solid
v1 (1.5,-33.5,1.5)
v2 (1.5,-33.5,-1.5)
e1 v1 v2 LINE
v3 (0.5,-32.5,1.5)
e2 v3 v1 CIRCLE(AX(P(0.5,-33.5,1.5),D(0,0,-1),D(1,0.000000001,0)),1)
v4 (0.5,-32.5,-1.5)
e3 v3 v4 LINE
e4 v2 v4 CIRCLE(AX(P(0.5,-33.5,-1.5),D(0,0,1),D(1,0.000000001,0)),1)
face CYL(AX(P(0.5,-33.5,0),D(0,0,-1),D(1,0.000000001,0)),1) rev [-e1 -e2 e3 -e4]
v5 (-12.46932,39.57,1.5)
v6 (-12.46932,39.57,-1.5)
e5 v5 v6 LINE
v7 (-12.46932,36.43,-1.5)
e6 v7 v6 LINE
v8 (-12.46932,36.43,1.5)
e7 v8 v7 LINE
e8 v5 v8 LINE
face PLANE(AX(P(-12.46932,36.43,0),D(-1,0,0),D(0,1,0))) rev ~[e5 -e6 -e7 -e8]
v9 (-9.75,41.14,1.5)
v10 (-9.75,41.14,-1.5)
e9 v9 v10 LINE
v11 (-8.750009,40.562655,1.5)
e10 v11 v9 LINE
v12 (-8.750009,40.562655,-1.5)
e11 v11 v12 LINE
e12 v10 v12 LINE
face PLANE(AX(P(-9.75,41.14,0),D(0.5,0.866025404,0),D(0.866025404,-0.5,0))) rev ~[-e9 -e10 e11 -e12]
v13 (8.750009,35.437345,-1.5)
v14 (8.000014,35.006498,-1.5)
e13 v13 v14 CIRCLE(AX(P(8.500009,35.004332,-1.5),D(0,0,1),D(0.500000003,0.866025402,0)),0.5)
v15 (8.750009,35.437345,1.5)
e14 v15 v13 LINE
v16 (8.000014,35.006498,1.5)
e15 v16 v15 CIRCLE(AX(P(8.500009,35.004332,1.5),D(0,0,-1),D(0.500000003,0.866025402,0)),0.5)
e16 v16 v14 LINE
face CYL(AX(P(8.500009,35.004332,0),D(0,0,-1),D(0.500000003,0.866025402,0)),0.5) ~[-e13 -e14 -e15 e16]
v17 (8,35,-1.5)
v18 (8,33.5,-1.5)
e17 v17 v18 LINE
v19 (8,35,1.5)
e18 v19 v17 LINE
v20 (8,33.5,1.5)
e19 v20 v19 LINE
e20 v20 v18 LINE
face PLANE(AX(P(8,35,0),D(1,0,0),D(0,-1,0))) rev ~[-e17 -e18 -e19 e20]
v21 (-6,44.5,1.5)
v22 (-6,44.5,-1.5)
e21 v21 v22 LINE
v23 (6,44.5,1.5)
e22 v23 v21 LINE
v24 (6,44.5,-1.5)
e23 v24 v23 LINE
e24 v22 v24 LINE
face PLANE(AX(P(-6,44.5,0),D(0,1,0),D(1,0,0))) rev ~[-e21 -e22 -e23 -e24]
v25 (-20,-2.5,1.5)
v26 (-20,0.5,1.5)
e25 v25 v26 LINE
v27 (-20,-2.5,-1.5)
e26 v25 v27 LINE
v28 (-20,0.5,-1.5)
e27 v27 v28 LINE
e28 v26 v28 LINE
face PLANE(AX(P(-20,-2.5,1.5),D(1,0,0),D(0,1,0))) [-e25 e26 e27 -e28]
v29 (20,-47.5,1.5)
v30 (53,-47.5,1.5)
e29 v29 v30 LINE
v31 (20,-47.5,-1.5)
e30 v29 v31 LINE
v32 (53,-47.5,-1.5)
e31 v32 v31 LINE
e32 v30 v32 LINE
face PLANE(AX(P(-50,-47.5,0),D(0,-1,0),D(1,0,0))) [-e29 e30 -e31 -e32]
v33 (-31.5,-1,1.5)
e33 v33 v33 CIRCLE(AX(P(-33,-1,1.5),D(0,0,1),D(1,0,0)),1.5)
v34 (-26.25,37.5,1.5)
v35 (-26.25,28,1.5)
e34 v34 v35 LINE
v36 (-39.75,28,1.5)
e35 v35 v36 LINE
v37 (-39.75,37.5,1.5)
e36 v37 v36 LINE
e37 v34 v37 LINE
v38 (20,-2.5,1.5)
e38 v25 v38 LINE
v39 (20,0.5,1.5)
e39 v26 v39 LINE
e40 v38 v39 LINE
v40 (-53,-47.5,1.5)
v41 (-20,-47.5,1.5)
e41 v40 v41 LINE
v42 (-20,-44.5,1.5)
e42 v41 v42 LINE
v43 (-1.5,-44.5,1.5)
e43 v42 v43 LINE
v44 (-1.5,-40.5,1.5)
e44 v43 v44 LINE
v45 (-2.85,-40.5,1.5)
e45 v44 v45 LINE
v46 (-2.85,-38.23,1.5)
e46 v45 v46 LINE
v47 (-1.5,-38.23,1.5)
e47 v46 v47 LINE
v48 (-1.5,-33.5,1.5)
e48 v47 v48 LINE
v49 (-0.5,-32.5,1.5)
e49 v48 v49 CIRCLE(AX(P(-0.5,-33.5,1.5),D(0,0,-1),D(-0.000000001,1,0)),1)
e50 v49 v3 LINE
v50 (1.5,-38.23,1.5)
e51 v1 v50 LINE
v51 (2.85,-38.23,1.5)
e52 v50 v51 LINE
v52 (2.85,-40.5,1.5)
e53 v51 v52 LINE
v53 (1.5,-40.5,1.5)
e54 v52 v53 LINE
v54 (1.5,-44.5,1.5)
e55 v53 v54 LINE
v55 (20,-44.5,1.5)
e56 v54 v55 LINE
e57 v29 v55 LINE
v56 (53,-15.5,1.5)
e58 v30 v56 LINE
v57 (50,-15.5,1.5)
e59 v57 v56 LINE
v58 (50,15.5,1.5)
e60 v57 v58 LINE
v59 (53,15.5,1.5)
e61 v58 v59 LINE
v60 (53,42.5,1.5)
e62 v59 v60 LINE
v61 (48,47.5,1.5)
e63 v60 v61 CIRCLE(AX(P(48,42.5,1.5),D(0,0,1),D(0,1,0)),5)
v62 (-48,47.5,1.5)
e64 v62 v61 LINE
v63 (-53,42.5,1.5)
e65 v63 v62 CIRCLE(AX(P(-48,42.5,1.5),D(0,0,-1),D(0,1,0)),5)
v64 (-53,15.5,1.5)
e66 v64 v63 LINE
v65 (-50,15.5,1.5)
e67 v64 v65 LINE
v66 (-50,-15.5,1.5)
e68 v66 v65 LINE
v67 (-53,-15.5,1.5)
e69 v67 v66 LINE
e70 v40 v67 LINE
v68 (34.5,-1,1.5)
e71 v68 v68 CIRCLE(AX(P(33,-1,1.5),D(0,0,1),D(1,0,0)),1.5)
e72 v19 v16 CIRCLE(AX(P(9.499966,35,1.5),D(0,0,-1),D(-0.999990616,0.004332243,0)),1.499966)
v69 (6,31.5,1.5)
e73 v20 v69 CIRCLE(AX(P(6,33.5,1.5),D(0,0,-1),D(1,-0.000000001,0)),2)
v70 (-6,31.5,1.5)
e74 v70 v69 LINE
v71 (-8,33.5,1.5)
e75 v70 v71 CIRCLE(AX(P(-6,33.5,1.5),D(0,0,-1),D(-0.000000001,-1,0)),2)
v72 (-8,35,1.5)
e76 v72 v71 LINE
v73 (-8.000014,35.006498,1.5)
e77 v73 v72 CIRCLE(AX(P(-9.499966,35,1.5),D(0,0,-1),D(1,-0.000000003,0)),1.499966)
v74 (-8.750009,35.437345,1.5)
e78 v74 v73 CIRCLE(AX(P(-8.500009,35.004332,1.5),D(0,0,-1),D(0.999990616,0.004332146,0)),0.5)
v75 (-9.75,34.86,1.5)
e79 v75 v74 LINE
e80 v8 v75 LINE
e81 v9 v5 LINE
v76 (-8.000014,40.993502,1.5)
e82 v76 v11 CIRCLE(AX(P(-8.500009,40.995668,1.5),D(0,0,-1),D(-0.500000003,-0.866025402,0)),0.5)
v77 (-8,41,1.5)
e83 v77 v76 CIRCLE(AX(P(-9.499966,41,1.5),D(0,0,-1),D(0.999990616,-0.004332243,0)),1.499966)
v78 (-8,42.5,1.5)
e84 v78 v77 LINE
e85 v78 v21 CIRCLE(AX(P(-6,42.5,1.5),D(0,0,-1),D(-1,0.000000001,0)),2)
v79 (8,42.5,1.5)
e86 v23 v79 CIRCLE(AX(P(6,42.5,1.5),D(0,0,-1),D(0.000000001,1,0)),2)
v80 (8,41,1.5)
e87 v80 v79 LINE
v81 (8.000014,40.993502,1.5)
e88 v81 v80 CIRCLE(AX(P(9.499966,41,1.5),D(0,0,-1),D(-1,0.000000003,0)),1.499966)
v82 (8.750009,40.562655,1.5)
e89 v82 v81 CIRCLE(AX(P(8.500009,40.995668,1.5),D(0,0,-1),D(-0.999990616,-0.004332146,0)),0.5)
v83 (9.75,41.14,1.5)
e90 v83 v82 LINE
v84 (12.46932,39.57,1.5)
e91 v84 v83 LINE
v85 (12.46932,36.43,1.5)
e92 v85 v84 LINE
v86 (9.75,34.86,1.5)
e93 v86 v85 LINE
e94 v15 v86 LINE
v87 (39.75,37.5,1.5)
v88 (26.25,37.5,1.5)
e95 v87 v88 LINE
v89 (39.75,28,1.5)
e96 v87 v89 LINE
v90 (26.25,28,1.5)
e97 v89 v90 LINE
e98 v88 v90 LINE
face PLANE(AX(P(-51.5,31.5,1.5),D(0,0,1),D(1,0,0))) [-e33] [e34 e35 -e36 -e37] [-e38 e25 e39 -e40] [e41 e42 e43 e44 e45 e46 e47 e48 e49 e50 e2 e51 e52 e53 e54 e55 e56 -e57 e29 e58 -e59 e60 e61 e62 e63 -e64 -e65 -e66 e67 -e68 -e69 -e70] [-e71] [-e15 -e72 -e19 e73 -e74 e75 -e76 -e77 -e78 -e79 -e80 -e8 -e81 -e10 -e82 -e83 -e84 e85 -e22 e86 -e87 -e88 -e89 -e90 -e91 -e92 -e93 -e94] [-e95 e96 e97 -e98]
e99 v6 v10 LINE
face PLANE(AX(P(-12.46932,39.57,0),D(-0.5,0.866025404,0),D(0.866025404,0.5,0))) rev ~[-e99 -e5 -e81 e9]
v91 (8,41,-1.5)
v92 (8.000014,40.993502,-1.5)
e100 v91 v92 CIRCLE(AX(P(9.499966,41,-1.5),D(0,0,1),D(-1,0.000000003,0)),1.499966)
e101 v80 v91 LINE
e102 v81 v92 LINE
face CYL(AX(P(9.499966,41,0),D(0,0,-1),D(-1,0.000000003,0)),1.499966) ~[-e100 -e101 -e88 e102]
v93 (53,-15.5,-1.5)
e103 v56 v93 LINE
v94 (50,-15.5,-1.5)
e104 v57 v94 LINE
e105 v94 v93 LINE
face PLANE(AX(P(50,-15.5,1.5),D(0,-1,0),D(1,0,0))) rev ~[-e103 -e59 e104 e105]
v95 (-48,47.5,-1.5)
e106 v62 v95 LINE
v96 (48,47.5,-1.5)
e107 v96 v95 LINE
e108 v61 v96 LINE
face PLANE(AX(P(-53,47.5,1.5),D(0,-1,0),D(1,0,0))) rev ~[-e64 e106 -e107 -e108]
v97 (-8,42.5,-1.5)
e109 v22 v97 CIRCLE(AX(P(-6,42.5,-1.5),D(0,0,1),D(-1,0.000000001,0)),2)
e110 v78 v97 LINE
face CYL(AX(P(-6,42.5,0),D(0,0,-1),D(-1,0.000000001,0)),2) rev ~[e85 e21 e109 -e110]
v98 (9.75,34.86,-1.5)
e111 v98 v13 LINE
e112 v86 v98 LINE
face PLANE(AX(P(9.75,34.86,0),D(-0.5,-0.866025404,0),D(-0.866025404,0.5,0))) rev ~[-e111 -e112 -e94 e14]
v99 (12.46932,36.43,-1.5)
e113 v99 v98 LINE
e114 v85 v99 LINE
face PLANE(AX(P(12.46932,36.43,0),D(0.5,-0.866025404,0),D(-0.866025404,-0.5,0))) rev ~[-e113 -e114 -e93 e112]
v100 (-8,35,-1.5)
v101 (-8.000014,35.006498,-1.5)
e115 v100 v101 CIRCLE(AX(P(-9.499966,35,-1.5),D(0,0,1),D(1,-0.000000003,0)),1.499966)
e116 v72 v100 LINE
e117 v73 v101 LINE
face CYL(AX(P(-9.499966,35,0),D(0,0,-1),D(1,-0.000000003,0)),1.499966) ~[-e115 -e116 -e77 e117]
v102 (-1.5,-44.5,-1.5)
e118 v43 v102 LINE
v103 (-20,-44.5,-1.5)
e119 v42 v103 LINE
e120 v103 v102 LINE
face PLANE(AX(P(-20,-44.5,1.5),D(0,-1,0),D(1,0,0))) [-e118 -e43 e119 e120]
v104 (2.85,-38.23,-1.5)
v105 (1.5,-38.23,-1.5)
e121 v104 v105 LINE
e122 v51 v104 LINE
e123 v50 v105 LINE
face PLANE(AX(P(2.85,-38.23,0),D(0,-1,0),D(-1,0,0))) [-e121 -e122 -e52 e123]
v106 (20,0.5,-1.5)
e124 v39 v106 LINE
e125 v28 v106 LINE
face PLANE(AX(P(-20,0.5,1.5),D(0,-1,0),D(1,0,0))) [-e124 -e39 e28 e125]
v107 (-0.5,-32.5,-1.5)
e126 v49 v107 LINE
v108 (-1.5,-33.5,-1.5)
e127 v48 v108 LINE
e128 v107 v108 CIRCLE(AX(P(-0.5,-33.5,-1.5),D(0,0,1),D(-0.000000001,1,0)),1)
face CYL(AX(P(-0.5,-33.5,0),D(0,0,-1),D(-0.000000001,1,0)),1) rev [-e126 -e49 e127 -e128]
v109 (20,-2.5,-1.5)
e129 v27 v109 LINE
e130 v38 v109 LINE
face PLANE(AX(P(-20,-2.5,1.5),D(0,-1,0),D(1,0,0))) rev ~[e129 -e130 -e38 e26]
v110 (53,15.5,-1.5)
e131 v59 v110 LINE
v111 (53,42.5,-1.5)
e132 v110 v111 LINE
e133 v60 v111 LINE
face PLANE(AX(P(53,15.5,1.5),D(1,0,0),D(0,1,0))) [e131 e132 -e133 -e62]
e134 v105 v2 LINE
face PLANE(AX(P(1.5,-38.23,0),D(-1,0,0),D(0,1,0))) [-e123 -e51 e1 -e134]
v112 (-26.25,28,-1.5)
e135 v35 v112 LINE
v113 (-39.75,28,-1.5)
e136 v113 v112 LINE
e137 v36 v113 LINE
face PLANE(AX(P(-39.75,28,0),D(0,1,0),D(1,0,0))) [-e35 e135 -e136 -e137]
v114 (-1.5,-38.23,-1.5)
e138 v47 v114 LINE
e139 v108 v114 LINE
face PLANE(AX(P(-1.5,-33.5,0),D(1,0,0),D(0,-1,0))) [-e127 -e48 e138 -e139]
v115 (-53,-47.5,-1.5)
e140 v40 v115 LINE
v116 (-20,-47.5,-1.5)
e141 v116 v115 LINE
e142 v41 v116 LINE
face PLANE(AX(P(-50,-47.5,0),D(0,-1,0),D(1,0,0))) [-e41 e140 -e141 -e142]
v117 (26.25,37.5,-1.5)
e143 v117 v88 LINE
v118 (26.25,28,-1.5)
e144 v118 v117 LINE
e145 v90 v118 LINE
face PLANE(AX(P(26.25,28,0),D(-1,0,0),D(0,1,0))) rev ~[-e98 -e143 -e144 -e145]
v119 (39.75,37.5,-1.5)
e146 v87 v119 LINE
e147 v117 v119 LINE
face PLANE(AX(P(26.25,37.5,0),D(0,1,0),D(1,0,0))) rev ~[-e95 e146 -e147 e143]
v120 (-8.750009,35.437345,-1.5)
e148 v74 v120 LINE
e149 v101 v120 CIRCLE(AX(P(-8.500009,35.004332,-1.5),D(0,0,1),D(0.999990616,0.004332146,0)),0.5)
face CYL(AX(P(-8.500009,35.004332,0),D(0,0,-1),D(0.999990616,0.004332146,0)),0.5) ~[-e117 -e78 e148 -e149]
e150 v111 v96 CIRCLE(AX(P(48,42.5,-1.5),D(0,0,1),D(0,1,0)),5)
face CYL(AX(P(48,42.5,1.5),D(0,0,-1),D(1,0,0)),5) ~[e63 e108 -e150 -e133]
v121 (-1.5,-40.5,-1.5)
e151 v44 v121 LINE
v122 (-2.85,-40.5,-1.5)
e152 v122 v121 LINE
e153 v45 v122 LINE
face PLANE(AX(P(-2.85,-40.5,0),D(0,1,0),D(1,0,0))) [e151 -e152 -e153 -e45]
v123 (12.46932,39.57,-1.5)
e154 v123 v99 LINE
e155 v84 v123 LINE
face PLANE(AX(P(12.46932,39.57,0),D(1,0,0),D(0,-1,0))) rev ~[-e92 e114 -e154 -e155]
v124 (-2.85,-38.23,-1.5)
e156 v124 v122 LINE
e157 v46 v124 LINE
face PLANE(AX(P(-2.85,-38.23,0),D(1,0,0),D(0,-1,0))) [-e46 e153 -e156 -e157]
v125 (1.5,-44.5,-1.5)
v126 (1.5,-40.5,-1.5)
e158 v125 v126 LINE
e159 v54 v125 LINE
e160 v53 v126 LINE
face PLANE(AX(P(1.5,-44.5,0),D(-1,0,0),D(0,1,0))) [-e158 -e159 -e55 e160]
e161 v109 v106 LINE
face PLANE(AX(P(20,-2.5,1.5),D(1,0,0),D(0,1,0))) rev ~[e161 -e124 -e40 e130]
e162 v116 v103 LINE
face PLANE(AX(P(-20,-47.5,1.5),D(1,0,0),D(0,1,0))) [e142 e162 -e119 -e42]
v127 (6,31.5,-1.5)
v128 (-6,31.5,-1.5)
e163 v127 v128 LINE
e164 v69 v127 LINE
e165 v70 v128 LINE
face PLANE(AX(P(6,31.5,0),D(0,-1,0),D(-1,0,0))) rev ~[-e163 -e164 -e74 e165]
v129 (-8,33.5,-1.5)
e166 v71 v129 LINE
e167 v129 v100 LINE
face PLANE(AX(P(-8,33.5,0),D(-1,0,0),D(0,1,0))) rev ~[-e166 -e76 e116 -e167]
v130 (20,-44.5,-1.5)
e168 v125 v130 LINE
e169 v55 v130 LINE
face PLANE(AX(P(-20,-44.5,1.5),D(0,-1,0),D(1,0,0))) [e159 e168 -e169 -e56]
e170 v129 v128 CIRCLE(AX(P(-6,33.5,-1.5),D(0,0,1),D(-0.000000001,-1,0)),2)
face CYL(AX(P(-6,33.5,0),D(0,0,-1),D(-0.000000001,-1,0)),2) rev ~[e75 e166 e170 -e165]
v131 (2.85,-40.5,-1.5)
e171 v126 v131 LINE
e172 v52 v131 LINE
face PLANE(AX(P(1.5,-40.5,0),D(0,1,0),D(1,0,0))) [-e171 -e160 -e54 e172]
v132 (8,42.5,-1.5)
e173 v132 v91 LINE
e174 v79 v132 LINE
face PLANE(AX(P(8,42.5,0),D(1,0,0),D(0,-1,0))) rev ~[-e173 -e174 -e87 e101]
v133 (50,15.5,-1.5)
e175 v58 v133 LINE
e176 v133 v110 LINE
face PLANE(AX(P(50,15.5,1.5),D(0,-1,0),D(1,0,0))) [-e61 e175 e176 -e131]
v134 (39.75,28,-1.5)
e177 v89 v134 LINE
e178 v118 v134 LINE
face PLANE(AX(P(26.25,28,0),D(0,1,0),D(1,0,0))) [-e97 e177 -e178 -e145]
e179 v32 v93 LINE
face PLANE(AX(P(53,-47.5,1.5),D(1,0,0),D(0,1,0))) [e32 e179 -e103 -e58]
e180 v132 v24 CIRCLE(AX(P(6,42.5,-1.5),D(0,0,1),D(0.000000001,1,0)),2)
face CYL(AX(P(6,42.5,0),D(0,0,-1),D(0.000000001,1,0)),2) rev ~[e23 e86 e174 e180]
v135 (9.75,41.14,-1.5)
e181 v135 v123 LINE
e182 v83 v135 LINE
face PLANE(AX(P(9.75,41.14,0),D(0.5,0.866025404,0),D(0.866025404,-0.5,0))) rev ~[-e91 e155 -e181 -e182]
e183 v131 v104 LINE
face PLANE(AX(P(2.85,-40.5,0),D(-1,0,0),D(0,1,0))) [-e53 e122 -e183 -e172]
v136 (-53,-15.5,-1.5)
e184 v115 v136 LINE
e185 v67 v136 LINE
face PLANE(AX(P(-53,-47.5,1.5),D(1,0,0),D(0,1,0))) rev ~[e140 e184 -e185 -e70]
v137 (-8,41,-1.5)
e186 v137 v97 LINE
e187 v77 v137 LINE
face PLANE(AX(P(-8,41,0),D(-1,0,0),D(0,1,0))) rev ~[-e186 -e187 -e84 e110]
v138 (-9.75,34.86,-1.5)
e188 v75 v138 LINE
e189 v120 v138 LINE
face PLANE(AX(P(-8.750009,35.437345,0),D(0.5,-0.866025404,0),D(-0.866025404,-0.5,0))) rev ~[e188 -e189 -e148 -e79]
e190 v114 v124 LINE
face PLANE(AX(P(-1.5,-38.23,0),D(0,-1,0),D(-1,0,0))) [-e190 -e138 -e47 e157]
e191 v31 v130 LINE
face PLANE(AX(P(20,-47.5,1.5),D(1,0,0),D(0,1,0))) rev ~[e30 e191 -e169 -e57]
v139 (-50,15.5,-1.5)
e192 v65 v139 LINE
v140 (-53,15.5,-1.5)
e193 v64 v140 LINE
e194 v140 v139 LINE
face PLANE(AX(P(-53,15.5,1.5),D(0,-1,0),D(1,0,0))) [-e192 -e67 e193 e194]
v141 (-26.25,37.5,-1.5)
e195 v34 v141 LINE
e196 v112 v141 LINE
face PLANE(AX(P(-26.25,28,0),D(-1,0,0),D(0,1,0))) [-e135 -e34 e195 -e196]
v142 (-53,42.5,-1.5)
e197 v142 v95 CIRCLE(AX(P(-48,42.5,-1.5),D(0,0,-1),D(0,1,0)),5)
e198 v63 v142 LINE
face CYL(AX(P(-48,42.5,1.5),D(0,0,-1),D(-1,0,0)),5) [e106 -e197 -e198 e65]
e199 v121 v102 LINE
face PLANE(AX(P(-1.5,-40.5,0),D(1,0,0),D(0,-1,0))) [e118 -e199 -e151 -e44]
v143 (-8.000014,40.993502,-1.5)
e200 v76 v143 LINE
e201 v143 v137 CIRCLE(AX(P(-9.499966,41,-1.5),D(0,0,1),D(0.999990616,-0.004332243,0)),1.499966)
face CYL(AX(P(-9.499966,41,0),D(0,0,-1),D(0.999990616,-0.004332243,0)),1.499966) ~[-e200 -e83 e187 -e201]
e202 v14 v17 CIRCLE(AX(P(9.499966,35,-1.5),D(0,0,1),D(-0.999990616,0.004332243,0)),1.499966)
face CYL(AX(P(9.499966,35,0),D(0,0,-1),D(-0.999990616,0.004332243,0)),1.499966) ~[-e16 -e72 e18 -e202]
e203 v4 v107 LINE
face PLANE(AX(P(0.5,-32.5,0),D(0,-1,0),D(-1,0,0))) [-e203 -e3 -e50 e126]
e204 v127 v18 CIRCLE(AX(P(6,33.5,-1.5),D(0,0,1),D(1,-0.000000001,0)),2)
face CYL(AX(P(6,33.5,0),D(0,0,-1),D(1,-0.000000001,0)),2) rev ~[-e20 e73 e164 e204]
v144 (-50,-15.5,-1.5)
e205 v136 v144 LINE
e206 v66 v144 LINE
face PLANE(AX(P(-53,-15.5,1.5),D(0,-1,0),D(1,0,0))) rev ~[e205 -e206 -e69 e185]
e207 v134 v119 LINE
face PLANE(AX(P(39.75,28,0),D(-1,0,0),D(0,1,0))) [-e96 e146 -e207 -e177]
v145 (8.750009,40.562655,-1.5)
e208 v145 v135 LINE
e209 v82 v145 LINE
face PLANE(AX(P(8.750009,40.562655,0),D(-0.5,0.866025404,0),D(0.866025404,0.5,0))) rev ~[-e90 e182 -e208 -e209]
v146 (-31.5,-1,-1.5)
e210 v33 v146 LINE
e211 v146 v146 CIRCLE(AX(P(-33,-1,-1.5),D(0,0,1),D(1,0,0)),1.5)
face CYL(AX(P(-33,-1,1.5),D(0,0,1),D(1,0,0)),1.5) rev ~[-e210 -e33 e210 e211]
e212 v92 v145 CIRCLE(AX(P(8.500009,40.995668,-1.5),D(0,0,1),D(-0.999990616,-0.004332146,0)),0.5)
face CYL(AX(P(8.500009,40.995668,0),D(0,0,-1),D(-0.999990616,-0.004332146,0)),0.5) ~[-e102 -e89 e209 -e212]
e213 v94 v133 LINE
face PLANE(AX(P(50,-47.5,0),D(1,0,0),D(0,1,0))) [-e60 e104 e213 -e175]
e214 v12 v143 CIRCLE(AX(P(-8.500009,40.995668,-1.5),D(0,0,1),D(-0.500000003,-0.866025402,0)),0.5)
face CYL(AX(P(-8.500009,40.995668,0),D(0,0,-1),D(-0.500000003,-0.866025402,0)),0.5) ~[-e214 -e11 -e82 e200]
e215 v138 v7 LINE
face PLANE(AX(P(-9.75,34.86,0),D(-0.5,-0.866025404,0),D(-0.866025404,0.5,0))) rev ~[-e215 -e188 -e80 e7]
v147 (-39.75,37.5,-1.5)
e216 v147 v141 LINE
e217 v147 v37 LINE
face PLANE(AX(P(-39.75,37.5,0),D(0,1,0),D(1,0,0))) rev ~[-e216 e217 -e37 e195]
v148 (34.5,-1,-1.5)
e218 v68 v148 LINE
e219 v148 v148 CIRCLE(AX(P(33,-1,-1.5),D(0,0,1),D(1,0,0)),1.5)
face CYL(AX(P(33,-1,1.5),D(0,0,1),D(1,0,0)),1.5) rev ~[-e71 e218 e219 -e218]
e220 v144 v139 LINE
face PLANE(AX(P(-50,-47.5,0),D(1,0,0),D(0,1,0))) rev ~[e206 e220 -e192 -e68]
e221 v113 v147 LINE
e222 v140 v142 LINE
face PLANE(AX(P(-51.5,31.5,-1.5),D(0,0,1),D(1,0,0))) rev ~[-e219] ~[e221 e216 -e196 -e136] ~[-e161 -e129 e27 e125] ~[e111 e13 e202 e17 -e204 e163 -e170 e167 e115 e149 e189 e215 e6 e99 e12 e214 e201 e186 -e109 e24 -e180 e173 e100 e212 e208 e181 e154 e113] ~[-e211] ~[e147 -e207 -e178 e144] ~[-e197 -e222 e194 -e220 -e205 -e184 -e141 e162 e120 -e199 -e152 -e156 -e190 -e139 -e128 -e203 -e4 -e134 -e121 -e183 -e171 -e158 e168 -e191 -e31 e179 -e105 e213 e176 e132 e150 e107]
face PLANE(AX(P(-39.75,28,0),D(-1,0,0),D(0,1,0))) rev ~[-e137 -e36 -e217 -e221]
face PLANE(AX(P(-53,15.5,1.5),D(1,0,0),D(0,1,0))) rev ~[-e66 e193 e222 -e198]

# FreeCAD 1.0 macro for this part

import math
import FreeCAD as App
import Part
import Sketcher

V = App.Vector
Q = App.Units.Quantity


def edges_at(feature, points):
    """Names of the edges that pass closest to the given points."""
    edges = feature.Shape.Edges
    near = lambda p: min(range(len(edges)), key=lambda i: edges[i].distToShape(Part.Vertex(*p))[0])
    return sorted({f"Edge{near(p) + 1}" for p in points})

doc = App.newDocument("Part")
params = doc.addObject("Spreadsheet::Sheet", "Params")
for row, (alias, value) in enumerate([
    ("sketch1_width", "100 mm"),
    ("sketch1_height", "95 mm"),
    ("pad1_length", "3 mm"),
    ("sketch2_width", "3 mm"),
    ("sketch2_height", "32 mm"),
    ("sketch3_diameter", "3 mm"),
    ("sketch3_width", "40 mm"),
    ("sketch3_height", "3 mm"),
    ("sketch4_radius", "1 mm"),
    ("sketch4_width", "3 mm"),
    ("sketch4_height", "4 mm"),
    ("sketch4_width2", "1.35 mm"),
    ("sketch4_height2", "2.27 mm"),
    ("sketch5_radius", "2 mm"),
    ("sketch5_radius2", "0.5 mm"),
    ("sketch5_width", "12 mm"),
    ("sketch5_height", "1.5 mm"),
    ("sketch5_height2", "3.14 mm"),
    ("sketch6_width", "13.5 mm"),
    ("sketch6_height", "9.5 mm"),
    ("fillet_radius", "5 mm"),
], start=1):
    params.set(f"A{row}", alias)
    params.set(f"B{row}", "=" + value)
    params.setAlias(f"B{row}", alias)

body = doc.addObject("PartDesign::Body", "Body")

# Sketch on XY plane
sketch1 = doc.addObject("Sketcher::SketchObject", "Sketch")
body.addObject(sketch1)
sketch1.AttachmentSupport = (doc.XY_Plane, [""])
sketch1.MapMode = "FlatFace"
sketch1.addGeometry(Part.LineSegment(V(-50, 48, 0), V(-50, -48, 0)), False)
sketch1.addGeometry(Part.LineSegment(V(-50, -48, 0), V(50, -48, 0)), False)
sketch1.addGeometry(Part.LineSegment(V(50, -48, 0), V(50, 48, 0)), False)
sketch1.addGeometry(Part.LineSegment(V(50, 48, 0), V(-50, 48, 0)), False)
sketch1.addConstraint(Sketcher.Constraint("Coincident", 0, 2, 1, 1))
sketch1.addConstraint(Sketcher.Constraint("Coincident", 1, 2, 2, 1))
sketch1.addConstraint(Sketcher.Constraint("Coincident", 2, 2, 3, 1))
sketch1.addConstraint(Sketcher.Constraint("Coincident", 3, 2, 0, 1))
sketch1.addConstraint(Sketcher.Constraint("Vertical", 0))
sketch1.addConstraint(Sketcher.Constraint("Horizontal", 1))
sketch1.addConstraint(Sketcher.Constraint("Vertical", 2))
sketch1.addConstraint(Sketcher.Constraint("Horizontal", 3))
sketch1.addConstraint(Sketcher.Constraint("Symmetric", 0, 2, 2, 2, -1, 1))
sketch1.addConstraint(Sketcher.Constraint("DistanceX", 1, 1, 1, 2, Q("100 mm")))
sketch1.addConstraint(Sketcher.Constraint("DistanceY", 0, 2, 0, 1, Q("95 mm")))
sketch1.setExpression("Constraints[9]", "Params.sketch1_width")
sketch1.setExpression("Constraints[10]", "Params.sketch1_height")
pad1 = doc.addObject("PartDesign::Pad", "Pad")
body.addObject(pad1)
pad1.Profile = sketch1
pad1.setExpression("Length", "Params.pad1_length")
pad1.Midplane = True

# Sketch on XY plane
sketch2 = doc.addObject("Sketcher::SketchObject", "Sketch001")
body.addObject(sketch2)
sketch2.AttachmentSupport = (doc.XY_Plane, [""])
sketch2.MapMode = "FlatFace"
sketch2.AttachmentOffset = App.Placement(V(0, 0, 1.5), App.Rotation())
sketch2.addGeometry(Part.LineSegment(V(-53, 47.5, 0), V(-53, 15.5, 0)), False)
sketch2.addGeometry(Part.LineSegment(V(-53, 15.5, 0), V(-50, 15.5, 0)), False)
sketch2.addGeometry(Part.LineSegment(V(-50, 15.5, 0), V(-50, 47.5, 0)), False)
sketch2.addGeometry(Part.LineSegment(V(-50, 47.5, 0), V(-53, 47.5, 0)), False)
sketch2.addGeometry(Part.LineSegment(V(-53, -15.5, 0), V(-53, -47.5, 0)), False)
sketch2.addGeometry(Part.LineSegment(V(-53, -47.5, 0), V(-50, -47.5, 0)), False)
sketch2.addGeometry(Part.LineSegment(V(-50, -47.5, 0), V(-50, -15.5, 0)), False)
sketch2.addGeometry(Part.LineSegment(V(-50, -15.5, 0), V(-53, -15.5, 0)), False)
sketch2.addGeometry(Part.LineSegment(V(50, -15.5, 0), V(50, -47.5, 0)), False)
sketch2.addGeometry(Part.LineSegment(V(50, -47.5, 0), V(53, -47.5, 0)), False)
sketch2.addGeometry(Part.LineSegment(V(53, -47.5, 0), V(53, -15.5, 0)), False)
sketch2.addGeometry(Part.LineSegment(V(53, -15.5, 0), V(50, -15.5, 0)), False)
sketch2.addGeometry(Part.LineSegment(V(50, 47.5, 0), V(50, 15.5, 0)), False)
sketch2.addGeometry(Part.LineSegment(V(50, 15.5, 0), V(53, 15.5, 0)), False)
sketch2.addGeometry(Part.LineSegment(V(53, 15.5, 0), V(53, 47.5, 0)), False)
sketch2.addGeometry(Part.LineSegment(V(53, 47.5, 0), V(50, 47.5, 0)), False)
sketch2.addConstraint(Sketcher.Constraint("Coincident", 0, 2, 1, 1))
sketch2.addConstraint(Sketcher.Constraint("Coincident", 1, 2, 2, 1))
sketch2.addConstraint(Sketcher.Constraint("Coincident", 2, 2, 3, 1))
sketch2.addConstraint(Sketcher.Constraint("Coincident", 3, 2, 0, 1))
sketch2.addConstraint(Sketcher.Constraint("Coincident", 4, 2, 5, 1))
sketch2.addConstraint(Sketcher.Constraint("Coincident", 5, 2, 6, 1))
sketch2.addConstraint(Sketcher.Constraint("Coincident", 6, 2, 7, 1))
sketch2.addConstraint(Sketcher.Constraint("Coincident", 7, 2, 4, 1))
sketch2.addConstraint(Sketcher.Constraint("Coincident", 8, 2, 9, 1))
sketch2.addConstraint(Sketcher.Constraint("Coincident", 9, 2, 10, 1))
sketch2.addConstraint(Sketcher.Constraint("Coincident", 10, 2, 11, 1))
sketch2.addConstraint(Sketcher.Constraint("Coincident", 11, 2, 8, 1))
sketch2.addConstraint(Sketcher.Constraint("Coincident", 12, 2, 13, 1))
sketch2.addConstraint(Sketcher.Constraint("Coincident", 13, 2, 14, 1))
sketch2.addConstraint(Sketcher.Constraint("Coincident", 14, 2, 15, 1))
sketch2.addConstraint(Sketcher.Constraint("Coincident", 15, 2, 12, 1))
sketch2.addConstraint(Sketcher.Constraint("Vertical", 0))
sketch2.addConstraint(Sketcher.Constraint("Horizontal", 1))
sketch2.addConstraint(Sketcher.Constraint("Vertical", 2))
sketch2.addConstraint(Sketcher.Constraint("Horizontal", 3))
sketch2.addConstraint(Sketcher.Constraint("Vertical", 4))
sketch2.addConstraint(Sketcher.Constraint("Horizontal", 5))
sketch2.addConstraint(Sketcher.Constraint("Vertical", 6))
sketch2.addConstraint(Sketcher.Constraint("Horizontal", 7))
sketch2.addConstraint(Sketcher.Constraint("Vertical", 8))
sketch2.addConstraint(Sketcher.Constraint("Horizontal", 9))
sketch2.addConstraint(Sketcher.Constraint("Vertical", 10))
sketch2.addConstraint(Sketcher.Constraint("Horizontal", 11))
sketch2.addConstraint(Sketcher.Constraint("Vertical", 12))
sketch2.addConstraint(Sketcher.Constraint("Horizontal", 13))
sketch2.addConstraint(Sketcher.Constraint("Vertical", 14))
sketch2.addConstraint(Sketcher.Constraint("Horizontal", 15))
sketch2.addConstraint(Sketcher.Constraint("Symmetric", 2, 2, 8, 2, -1, 1))
sketch2.addConstraint(Sketcher.Constraint("Symmetric", 0, 2, 10, 2, -1, 1))
sketch2.addConstraint(Sketcher.Constraint("Symmetric", 6, 2, 12, 2, -1, 1))
sketch2.addConstraint(Sketcher.Constraint("Symmetric", 4, 2, 14, 2, -1, 1))
sketch2.addConstraint(Sketcher.Constraint("Symmetric", 5, 2, 8, 2, -2))
sketch2.addConstraint(Sketcher.Constraint("Symmetric", 7, 2, 10, 2, -2))
sketch2.addConstraint(Sketcher.Constraint("DistanceX", 1, 1, 1, 2, Q("3 mm")))
sketch2.addConstraint(Sketcher.Constraint("DistanceY", 0, 2, 0, 1, Q("32 mm")))
sketch2.addConstraint(Sketcher.Constraint("DistanceX", 0, 2, -1, 1, Q("53 mm")))
sketch2.addConstraint(Sketcher.Constraint("DistanceY", 4, 2, 0, 2, Q("63 mm")))
sketch2.setExpression("Constraints[38]", "Params.sketch2_width")
sketch2.setExpression("Constraints[39]", "Params.sketch2_height")
pad2 = doc.addObject("PartDesign::Pad", "Pad001")
body.addObject(pad2)
pad2.Profile = sketch2
pad2.Type = "UpToLast"
pad2.Reversed = True

# Sketch on XY plane
sketch3 = doc.addObject("Sketcher::SketchObject", "Sketch002")
body.addObject(sketch3)
sketch3.AttachmentSupport = (doc.XY_Plane, [""])
sketch3.MapMode = "FlatFace"
sketch3.AttachmentOffset = App.Placement(V(0, 0, 1.5), App.Rotation())
sketch3.addGeometry(Part.Circle(V(-33, -1, 0), V(0, 0, 1), 1.5), False)
sketch3.addGeometry(Part.Circle(V(33, -1, 0), V(0, 0, 1), 1.5), False)
sketch3.addGeometry(Part.LineSegment(V(-20, -44.5, 0), V(-20, -47.5, 0)), False)
sketch3.addGeometry(Part.LineSegment(V(-20, -47.5, 0), V(20, -47.5, 0)), False)
sketch3.addGeometry(Part.LineSegment(V(20, -47.5, 0), V(20, -44.5, 0)), False)
sketch3.addGeometry(Part.LineSegment(V(20, -44.5, 0), V(-20, -44.5, 0)), False)
sketch3.addGeometry(Part.LineSegment(V(-20, 0.5, 0), V(-20, -2.5, 0)), False)
sketch3.addGeometry(Part.LineSegment(V(-20, -2.5, 0), V(20, -2.5, 0)), False)
sketch3.addGeometry(Part.LineSegment(V(20, -2.5, 0), V(20, 0.5, 0)), False)
sketch3.addGeometry(Part.LineSegment(V(20, 0.5, 0), V(-20, 0.5, 0)), False)
sketch3.addConstraint(Sketcher.Constraint("Coincident", 2, 2, 3, 1))
sketch3.addConstraint(Sketcher.Constraint("Coincident", 3, 2, 4, 1))
sketch3.addConstraint(Sketcher.Constraint("Coincident", 4, 2, 5, 1))
sketch3.addConstraint(Sketcher.Constraint("Coincident", 5, 2, 2, 1))
sketch3.addConstraint(Sketcher.Constraint("Coincident", 6, 2, 7, 1))
sketch3.addConstraint(Sketcher.Constraint("Coincident", 7, 2, 8, 1))
sketch3.addConstraint(Sketcher.Constraint("Coincident", 8, 2, 9, 1))
sketch3.addConstraint(Sketcher.Constraint("Coincident", 9, 2, 6, 1))
sketch3.addConstraint(Sketcher.Constraint("Vertical", 2))
sketch3.addConstraint(Sketcher.Constraint("Horizontal", 3))
sketch3.addConstraint(Sketcher.Constraint("Vertical", 4))
sketch3.addConstraint(Sketcher.Constraint("Horizontal", 5))
sketch3.addConstraint(Sketcher.Constraint("Vertical", 6))
sketch3.addConstraint(Sketcher.Constraint("Horizontal", 7))
sketch3.addConstraint(Sketcher.Constraint("Vertical", 8))
sketch3.addConstraint(Sketcher.Constraint("Horizontal", 9))
sketch3.addConstraint(Sketcher.Constraint("Equal", 0, 1))
sketch3.addConstraint(Sketcher.Constraint("Symmetric", 0, 3, 1, 3, -2))
sketch3.addConstraint(Sketcher.Constraint("Vertical", 5, 2, 6, 2))
sketch3.addConstraint(Sketcher.Constraint("Vertical", 4, 2, 7, 2))
sketch3.addConstraint(Sketcher.Constraint("Equal", 4, 6))
sketch3.addConstraint(Sketcher.Constraint("Diameter", 0, Q("3 mm")))
sketch3.addConstraint(Sketcher.Constraint("DistanceX", 3, 1, 3, 2, Q("40 mm")))
sketch3.addConstraint(Sketcher.Constraint("DistanceY", 2, 2, 2, 1, Q("3 mm")))
sketch3.addConstraint(Sketcher.Constraint("DistanceX", 0, 3, -1, 1, Q("33 mm")))
sketch3.addConstraint(Sketcher.Constraint("DistanceY", 0, 3, -1, 1, Q("1 mm")))
sketch3.addConstraint(Sketcher.Constraint("DistanceX", 2, 2, -1, 1, Q("20 mm")))
sketch3.addConstraint(Sketcher.Constraint("DistanceY", 5, 2, 6, 2, Q("42 mm")))
sketch3.addConstraint(Sketcher.Constraint("DistanceY", 2, 2, -1, 1, Q("47.5 mm")))
sketch3.setExpression("Constraints[21]", "Params.sketch3_diameter")
sketch3.setExpression("Constraints[22]", "Params.sketch3_width")
sketch3.setExpression("Constraints[23]", "Params.sketch3_height")
pocket1 = doc.addObject("PartDesign::Pocket", "Pocket")
body.addObject(pocket1)
pocket1.Profile = sketch3
pocket1.Type = "ThroughAll"

# Sketch on XY plane
sketch4 = doc.addObject("Sketcher::SketchObject", "Sketch003")
body.addObject(sketch4)
sketch4.AttachmentSupport = (doc.XY_Plane, [""])
sketch4.MapMode = "FlatFace"
sketch4.addGeometry(Part.LineSegment(V(-1.5, -44.5, 0), V(1.5, -44.5, 0)), False)
sketch4.addGeometry(Part.LineSegment(V(1.5, -44.5, 0), V(1.5, -40.5, 0)), False)
sketch4.addGeometry(Part.LineSegment(V(1.5, -40.5, 0), V(2.9, -40.5, 0)), False)
sketch4.addGeometry(Part.LineSegment(V(2.9, -40.5, 0), V(2.9, -38.2, 0)), False)
sketch4.addGeometry(Part.LineSegment(V(2.9, -38.2, 0), V(1.5, -38.2, 0)), False)
sketch4.addGeometry(Part.LineSegment(V(1.5, -38.2, 0), V(1.5, -33.5, 0)), False)
sketch4.addGeometry(Part.ArcOfCircle(Part.Circle(V(0.5, -33.5, 0), V(0, 0, 1), 1), math.radians(0), math.radians(90)), False)
sketch4.addGeometry(Part.LineSegment(V(0.5, -32.5, 0), V(-0.5, -32.5, 0)), False)
sketch4.addGeometry(Part.ArcOfCircle(Part.Circle(V(-0.5, -33.5, 0), V(0, 0, 1), 1), math.radians(90), math.radians(180)), False)
sketch4.addGeometry(Part.LineSegment(V(-1.5, -33.5, 0), V(-1.5, -38.2, 0)), False)
sketch4.addGeometry(Part.LineSegment(V(-1.5, -38.2, 0), V(-2.9, -38.2, 0)), False)
sketch4.addGeometry(Part.LineSegment(V(-2.9, -38.2, 0), V(-2.9, -40.5, 0)), False)
sketch4.addGeometry(Part.LineSegment(V(-2.9, -40.5, 0), V(-1.5, -40.5, 0)), False)
sketch4.addGeometry(Part.LineSegment(V(-1.5, -40.5, 0), V(-1.5, -44.5, 0)), False)
sketch4.addConstraint(Sketcher.Constraint("Coincident", 0, 2, 1, 1))
sketch4.addConstraint(Sketcher.Constraint("Coincident", 1, 2, 2, 1))
sketch4.addConstraint(Sketcher.Constraint("Coincident", 2, 2, 3, 1))
sketch4.addConstraint(Sketcher.Constraint("Coincident", 3, 2, 4, 1))
sketch4.addConstraint(Sketcher.Constraint("Coincident", 4, 2, 5, 1))
sketch4.addConstraint(Sketcher.Constraint("Tangent", 5, 2, 6, 1))
sketch4.addConstraint(Sketcher.Constraint("Tangent", 6, 2, 7, 1))
sketch4.addConstraint(Sketcher.Constraint("Tangent", 7, 2, 8, 1))
sketch4.addConstraint(Sketcher.Constraint("Tangent", 8, 2, 9, 1))
sketch4.addConstraint(Sketcher.Constraint("Coincident", 9, 2, 10, 1))
sketch4.addConstraint(Sketcher.Constraint("Coincident", 10, 2, 11, 1))
sketch4.addConstraint(Sketcher.Constraint("Coincident", 11, 2, 12, 1))
sketch4.addConstraint(Sketcher.Constraint("Coincident", 12, 2, 13, 1))
sketch4.addConstraint(Sketcher.Constraint("Coincident", 13, 2, 0, 1))
sketch4.addConstraint(Sketcher.Constraint("Horizontal", 0))
sketch4.addConstraint(Sketcher.Constraint("Vertical", 1))
sketch4.addConstraint(Sketcher.Constraint("Horizontal", 2))
sketch4.addConstraint(Sketcher.Constraint("Vertical", 3))
sketch4.addConstraint(Sketcher.Constraint("Horizontal", 4))
sketch4.addConstraint(Sketcher.Constraint("Vertical", 5))
sketch4.addConstraint(Sketcher.Constraint("Horizontal", 7))
sketch4.addConstraint(Sketcher.Constraint("Vertical", 9))
sketch4.addConstraint(Sketcher.Constraint("Horizontal", 10))
sketch4.addConstraint(Sketcher.Constraint("Vertical", 11))
sketch4.addConstraint(Sketcher.Constraint("Horizontal", 12))
sketch4.addConstraint(Sketcher.Constraint("Vertical", 13))
sketch4.addConstraint(Sketcher.Constraint("Equal", 6, 8))
sketch4.addConstraint(Sketcher.Constraint("Symmetric", 4, 2, 9, 2, -2))
sketch4.addConstraint(Sketcher.Constraint("Symmetric", 2, 2, 11, 2, -2))
sketch4.addConstraint(Sketcher.Constraint("Vertical", 1, 2, 4, 2))
sketch4.addConstraint(Sketcher.Constraint("Vertical", 9, 2, 12, 2))
sketch4.addConstraint(Sketcher.Constraint("Radius", 6, Q("1 mm")))
sketch4.addConstraint(Sketcher.Constraint("DistanceX", 0, 1, 0, 2, Q("3 mm")))
sketch4.addConstraint(Sketcher.Constraint("DistanceY", 1, 1, 1, 2, Q("4 mm")))
sketch4.addConstraint(Sketcher.Constraint("DistanceY", 0, 2, 6, 3, Q("11 mm")))
sketch4.addConstraint(Sketcher.Constraint("DistanceX", 2, 1, 2, 2, Q("1.35 mm")))
sketch4.addConstraint(Sketcher.Constraint("DistanceY", 3, 1, 3, 2, Q("2.27 mm")))
sketch4.addConstraint(Sketcher.Constraint("DistanceY", 6, 3, -1, 1, Q("33.5 mm")))
sketch4.setExpression("Constraints[31]", "Params.sketch4_radius")
sketch4.setExpression("Constraints[32]", "Params.sketch4_width")
sketch4.setExpression("Constraints[33]", "Params.sketch4_height")
sketch4.setExpression("Constraints[35]", "Params.sketch4_width2")
sketch4.setExpression("Constraints[36]", "Params.sketch4_height2")
pocket2 = doc.addObject("PartDesign::Pocket", "Pocket001")
body.addObject(pocket2)
pocket2.Profile = sketch4
pocket2.Type = "ThroughAll"
pocket2.Midplane = True

# Sketch on XY plane
sketch5 = doc.addObject("Sketcher::SketchObject", "Sketch004")
body.addObject(sketch5)
sketch5.AttachmentSupport = (doc.XY_Plane, [""])
sketch5.MapMode = "FlatFace"
sketch5.addGeometry(Part.LineSegment(V(6, 44.5, 0), V(-6, 44.5, 0)), False)
sketch5.addGeometry(Part.ArcOfCircle(Part.Circle(V(-6, 42.5, 0), V(0, 0, 1), 2), math.radians(90), math.radians(180)), False)
sketch5.addGeometry(Part.LineSegment(V(-8, 42.5, 0), V(-8, 41, 0)), False)
sketch5.addGeometry(Part.ArcOfCircle(Part.Circle(V(-9.5, 41, 0), V(0, 0, 1), 1.5), math.radians(-0.25), math.radians(0)), False)
sketch5.addGeometry(Part.ArcOfCircle(Part.Circle(V(-8.5, 40.996, 0), V(0, 0, 1), 0.5), math.radians(-120), math.radians(0)), False)
sketch5.addGeometry(Part.LineSegment(V(-8.75, 40.563, 0), V(-9.75, 41.14, 0)), False)
sketch5.addGeometry(Part.LineSegment(V(-9.75, 41.14, 0), V(-12.469, 39.57, 0)), False)
sketch5.addGeometry(Part.LineSegment(V(-12.469, 39.57, 0), V(-12.469, 36.43, 0)), False)
sketch5.addGeometry(Part.LineSegment(V(-12.469, 36.43, 0), V(-9.75, 34.86, 0)), False)
sketch5.addGeometry(Part.LineSegment(V(-9.75, 34.86, 0), V(-8.75, 35.437, 0)), False)
sketch5.addGeometry(Part.ArcOfCircle(Part.Circle(V(-8.5, 35.004, 0), V(0, 0, 1), 0.5), math.radians(0), math.radians(120)), False)
sketch5.addGeometry(Part.ArcOfCircle(Part.Circle(V(-9.5, 35, 0), V(0, 0, 1), 1.5), math.radians(0), math.radians(0.25)), False)
sketch5.addGeometry(Part.LineSegment(V(-8, 35, 0), V(-8, 33.5, 0)), False)
sketch5.addGeometry(Part.ArcOfCircle(Part.Circle(V(-6, 33.5, 0), V(0, 0, 1), 2), math.radians(-180), math.radians(-90)), False)
sketch5.addGeometry(Part.LineSegment(V(-6, 31.5, 0), V(6, 31.5, 0)), False)
sketch5.addGeometry(Part.ArcOfCircle(Part.Circle(V(6, 33.5, 0), V(0, 0, 1), 2), math.radians(-90), math.radians(0)), False)
sketch5.addGeometry(Part.LineSegment(V(8, 33.5, 0), V(8, 35, 0)), False)
sketch5.addGeometry(Part.ArcOfCircle(Part.Circle(V(9.5, 35, 0), V(0, 0, 1), 1.5), math.radians(179.75), math.radians(180)), False)
sketch5.addGeometry(Part.ArcOfCircle(Part.Circle(V(8.5, 35.004, 0), V(0, 0, 1), 0.5), math.radians(60), math.radians(180)), False)
sketch5.addGeometry(Part.LineSegment(V(8.75, 35.437, 0), V(9.75, 34.86, 0)), False)
sketch5.addGeometry(Part.LineSegment(V(9.75, 34.86, 0), V(12.469, 36.43, 0)), False)
sketch5.addGeometry(Part.LineSegment(V(12.469, 36.43, 0), V(12.469, 39.57, 0)), False)
sketch5.addGeometry(Part.LineSegment(V(12.469, 39.57, 0), V(9.75, 41.14, 0)), False)
sketch5.addGeometry(Part.LineSegment(V(9.75, 41.14, 0), V(8.75, 40.563, 0)), False)
sketch5.addGeometry(Part.ArcOfCircle(Part.Circle(V(8.5, 40.996, 0), V(0, 0, 1), 0.5), math.radians(-180), math.radians(-60)), False)
sketch5.addGeometry(Part.ArcOfCircle(Part.Circle(V(9.5, 41, 0), V(0, 0, 1), 1.5), math.radians(180), math.radians(180.25)), False)
sketch5.addGeometry(Part.LineSegment(V(8, 41, 0), V(8, 42.5, 0)), False)
sketch5.addGeometry(Part.ArcOfCircle(Part.Circle(V(6, 42.5, 0), V(0, 0, 1), 2), math.radians(0), math.radians(90)), False)
sketch5.addConstraint(Sketcher.Constraint("Tangent", 0, 2, 1, 1))
sketch5.addConstraint(Sketcher.Constraint("Tangent", 1, 2, 2, 1))
sketch5.addConstraint(Sketcher.Constraint("Tangent", 2, 2, 3, 2))
sketch5.addConstraint(Sketcher.Constraint("Tangent", 3, 1, 4, 2))
sketch5.addConstraint(Sketcher.Constraint("Tangent", 4, 1, 5, 1))
sketch5.addConstraint(Sketcher.Constraint("Coincident", 5, 2, 6, 1))
sketch5.addConstraint(Sketcher.Constraint("Coincident", 6, 2, 7, 1))
sketch5.addConstraint(Sketcher.Constraint("Coincident", 7, 2, 8, 1))
sketch5.addConstraint(Sketcher.Constraint("Coincident", 8, 2, 9, 1))
sketch5.addConstraint(Sketcher.Constraint("Tangent", 9, 2, 10, 2))
sketch5.addConstraint(Sketcher.Constraint("Tangent", 10, 1, 11, 2))
sketch5.addConstraint(Sketcher.Constraint("Tangent", 11, 1, 12, 1))
sketch5.addConstraint(Sketcher.Constraint("Tangent", 12, 2, 13, 1))
sketch5.addConstraint(Sketcher.Constraint("Tangent", 13, 2, 14, 1))
sketch5.addConstraint(Sketcher.Constraint("Tangent", 14, 2, 15, 1))
sketch5.addConstraint(Sketcher.Constraint("Tangent", 15, 2, 16, 1))
sketch5.addConstraint(Sketcher.Constraint("Tangent", 16, 2, 17, 2))
sketch5.addConstraint(Sketcher.Constraint("Tangent", 17, 1, 18, 2))
sketch5.addConstraint(Sketcher.Constraint("Tangent", 18, 1, 19, 1))
sketch5.addConstraint(Sketcher.Constraint("Coincident", 19, 2, 20, 1))
sketch5.addConstraint(Sketcher.Constraint("Coincident", 20, 2, 21, 1))
sketch5.addConstraint(Sketcher.Constraint("Coincident", 21, 2, 22, 1))
sketch5.addConstraint(Sketcher.Constraint("Coincident", 22, 2, 23, 1))
sketch5.addConstraint(Sketcher.Constraint("Tangent", 23, 2, 24, 2))
sketch5.addConstraint(Sketcher.Constraint("Tangent", 24, 1, 25, 2))
sketch5.addConstraint(Sketcher.Constraint("Tangent", 25, 1, 26, 1))
sketch5.addConstraint(Sketcher.Constraint("Tangent", 26, 2, 27, 1))
sketch5.addConstraint(Sketcher.Constraint("Tangent", 27, 2, 0, 1))
sketch5.addConstraint(Sketcher.Constraint("Horizontal", 0))
sketch5.addConstraint(Sketcher.Constraint("Vertical", 2))
sketch5.addConstraint(Sketcher.Constraint("Vertical", 7))
sketch5.addConstraint(Sketcher.Constraint("Vertical", 12))
sketch5.addConstraint(Sketcher.Constraint("Horizontal", 14))
sketch5.addConstraint(Sketcher.Constraint("Vertical", 16))
sketch5.addConstraint(Sketcher.Constraint("Vertical", 21))
sketch5.addConstraint(Sketcher.Constraint("Vertical", 26))
sketch5.addConstraint(Sketcher.Constraint("Equal", 4, 10))
sketch5.addConstraint(Sketcher.Constraint("Equal", 3, 11))
sketch5.addConstraint(Sketcher.Constraint("Equal", 1, 13))
sketch5.addConstraint(Sketcher.Constraint("Equal", 13, 15))
sketch5.addConstraint(Sketcher.Constraint("Equal", 11, 17))
sketch5.addConstraint(Sketcher.Constraint("Equal", 10, 18))
sketch5.addConstraint(Sketcher.Constraint("Equal", 18, 24))
sketch5.addConstraint(Sketcher.Constraint("Equal", 17, 25))
sketch5.addConstraint(Sketcher.Constraint("Equal", 15, 27))
sketch5.addConstraint(Sketcher.Constraint("Symmetric", 11, 3, 17, 3, -2))
sketch5.addConstraint(Sketcher.Constraint("Symmetric", 4, 3, 24, 3, -2))
sketch5.addConstraint(Sketcher.Constraint("Symmetric", 9, 2, 18, 1, -2))
sketch5.addConstraint(Sketcher.Constraint("Symmetric", 7, 2, 20, 2, -2))
sketch5.addConstraint(Sketcher.Constraint("Symmetric", 5, 2, 22, 2, -2))
sketch5.addConstraint(Sketcher.Constraint("Parallel", 5, 8))
sketch5.addConstraint(Sketcher.Constraint("Parallel", 6, 9))
sketch5.addConstraint(Sketcher.Constraint("Parallel", 8, 19))
sketch5.addConstraint(Sketcher.Constraint("Parallel", 9, 20))
sketch5.addConstraint(Sketcher.Constraint("Parallel", 19, 22))
sketch5.addConstraint(Sketcher.Constraint("Horizontal", 3, 3, 25, 3))
sketch5.addConstraint(Sketcher.Constraint("Vertical", 4, 3, 10, 3))
sketch5.addConstraint(Sketcher.Constraint("Vertical", 5, 2, 8, 2))
sketch5.addConstraint(Sketcher.Constraint("Equal", 0, 14))
sketch5.addConstraint(Sketcher.Constraint("Equal", 2, 12))
sketch5.addConstraint(Sketcher.Constraint("Radius", 1, Q("2 mm")))
sketch5.addConstraint(Sketcher.Constraint("Radius", 4, Q("0.5 mm")))
sketch5.addConstraint(Sketcher.Constraint("DistanceX", 0, 2, 0, 1, Q("12 mm")))
sketch5.addConstraint(Sketcher.Constraint("Angle", 5, Q("150 deg")))
sketch5.addConstraint(Sketcher.Constraint("DistanceY", 2, 2, 2, 1, Q("1.5 mm")))
sketch5.addConstraint(Sketcher.Constraint("DistanceY", -1, 1, 3, 3, Q("41 mm")))
sketch5.addConstraint(Sketcher.Constraint("DistanceY", -1, 1, 11, 3, Q("35 mm")))
sketch5.addConstraint(Sketcher.Constraint("DistanceY", 7, 2, 7, 1, Q("3.14 mm")))
sketch5.addConstraint(Sketcher.Constraint("Distance", 6, Q("3.14 mm")))
sketch5.addConstraint(Sketcher.Constraint("DistanceX", 5, 2, -1, 1, Q("9.75 mm")))
sketch5.addConstraint(Sketcher.Constraint("Radius", 3, Q("1.499966 mm")))
sketch5.setExpression("Constraints[60]", "Params.sketch5_radius")
sketch5.setExpression("Constraints[61]", "Params.sketch5_radius2")
sketch5.setExpression("Constraints[62]", "Params.sketch5_width")
sketch5.setExpression("Constraints[64]", "Params.sketch5_height")
sketch5.setExpression("Constraints[67]", "Params.sketch5_height2")
pocket3 = doc.addObject("PartDesign::Pocket", "Pocket002")
body.addObject(pocket3)
pocket3.Profile = sketch5
pocket3.Type = "ThroughAll"
pocket3.Midplane = True

# Sketch on XY plane
sketch6 = doc.addObject("Sketcher::SketchObject", "Sketch005")
body.addObject(sketch6)
sketch6.AttachmentSupport = (doc.XY_Plane, [""])
sketch6.MapMode = "FlatFace"
sketch6.addGeometry(Part.LineSegment(V(-40, 38, 0), V(-40, 28, 0)), False)
sketch6.addGeometry(Part.LineSegment(V(-40, 28, 0), V(-26, 28, 0)), False)
sketch6.addGeometry(Part.LineSegment(V(-26, 28, 0), V(-26, 38, 0)), False)
sketch6.addGeometry(Part.LineSegment(V(-26, 38, 0), V(-40, 38, 0)), False)
sketch6.addGeometry(Part.LineSegment(V(26, 38, 0), V(26, 28, 0)), False)
sketch6.addGeometry(Part.LineSegment(V(26, 28, 0), V(40, 28, 0)), False)
sketch6.addGeometry(Part.LineSegment(V(40, 28, 0), V(40, 38, 0)), False)
sketch6.addGeometry(Part.LineSegment(V(40, 38, 0), V(26, 38, 0)), False)
sketch6.addConstraint(Sketcher.Constraint("Coincident", 0, 2, 1, 1))
sketch6.addConstraint(Sketcher.Constraint("Coincident", 1, 2, 2, 1))
sketch6.addConstraint(Sketcher.Constraint("Coincident", 2, 2, 3, 1))
sketch6.addConstraint(Sketcher.Constraint("Coincident", 3, 2, 0, 1))
sketch6.addConstraint(Sketcher.Constraint("Coincident", 4, 2, 5, 1))
sketch6.addConstraint(Sketcher.Constraint("Coincident", 5, 2, 6, 1))
sketch6.addConstraint(Sketcher.Constraint("Coincident", 6, 2, 7, 1))
sketch6.addConstraint(Sketcher.Constraint("Coincident", 7, 2, 4, 1))
sketch6.addConstraint(Sketcher.Constraint("Vertical", 0))
sketch6.addConstraint(Sketcher.Constraint("Horizontal", 1))
sketch6.addConstraint(Sketcher.Constraint("Vertical", 2))
sketch6.addConstraint(Sketcher.Constraint("Horizontal", 3))
sketch6.addConstraint(Sketcher.Constraint("Vertical", 4))
sketch6.addConstraint(Sketcher.Constraint("Horizontal", 5))
sketch6.addConstraint(Sketcher.Constraint("Vertical", 6))
sketch6.addConstraint(Sketcher.Constraint("Horizontal", 7))
sketch6.addConstraint(Sketcher.Constraint("Symmetric", 1, 2, 4, 2, -2))
sketch6.addConstraint(Sketcher.Constraint("Symmetric", 3, 2, 6, 2, -2))
sketch6.addConstraint(Sketcher.Constraint("DistanceX", 1, 1, 1, 2, Q("13.5 mm")))
sketch6.addConstraint(Sketcher.Constraint("DistanceY", 0, 2, 0, 1, Q("9.5 mm")))
sketch6.addConstraint(Sketcher.Constraint("DistanceY", -1, 1, 0, 2, Q("28 mm")))
sketch6.addConstraint(Sketcher.Constraint("DistanceX", 0, 2, 4, 2, Q("66 mm")))
sketch6.setExpression("Constraints[18]", "Params.sketch6_width")
sketch6.setExpression("Constraints[19]", "Params.sketch6_height")
pocket4 = doc.addObject("PartDesign::Pocket", "Pocket003")
body.addObject(pocket4)
pocket4.Profile = sketch6
pocket4.Type = "ThroughAll"
pocket4.Midplane = True
doc.recompute()

fillet = doc.addObject("PartDesign::Fillet", "Fillet")
body.addObject(fillet)
fillet.Base = (pocket4, edges_at(pocket4, [(-53, 47.5, 0), (53, 47.5, 0)]))
fillet.setExpression("Radius", "Params.fillet_radius")

doc.recompute()
